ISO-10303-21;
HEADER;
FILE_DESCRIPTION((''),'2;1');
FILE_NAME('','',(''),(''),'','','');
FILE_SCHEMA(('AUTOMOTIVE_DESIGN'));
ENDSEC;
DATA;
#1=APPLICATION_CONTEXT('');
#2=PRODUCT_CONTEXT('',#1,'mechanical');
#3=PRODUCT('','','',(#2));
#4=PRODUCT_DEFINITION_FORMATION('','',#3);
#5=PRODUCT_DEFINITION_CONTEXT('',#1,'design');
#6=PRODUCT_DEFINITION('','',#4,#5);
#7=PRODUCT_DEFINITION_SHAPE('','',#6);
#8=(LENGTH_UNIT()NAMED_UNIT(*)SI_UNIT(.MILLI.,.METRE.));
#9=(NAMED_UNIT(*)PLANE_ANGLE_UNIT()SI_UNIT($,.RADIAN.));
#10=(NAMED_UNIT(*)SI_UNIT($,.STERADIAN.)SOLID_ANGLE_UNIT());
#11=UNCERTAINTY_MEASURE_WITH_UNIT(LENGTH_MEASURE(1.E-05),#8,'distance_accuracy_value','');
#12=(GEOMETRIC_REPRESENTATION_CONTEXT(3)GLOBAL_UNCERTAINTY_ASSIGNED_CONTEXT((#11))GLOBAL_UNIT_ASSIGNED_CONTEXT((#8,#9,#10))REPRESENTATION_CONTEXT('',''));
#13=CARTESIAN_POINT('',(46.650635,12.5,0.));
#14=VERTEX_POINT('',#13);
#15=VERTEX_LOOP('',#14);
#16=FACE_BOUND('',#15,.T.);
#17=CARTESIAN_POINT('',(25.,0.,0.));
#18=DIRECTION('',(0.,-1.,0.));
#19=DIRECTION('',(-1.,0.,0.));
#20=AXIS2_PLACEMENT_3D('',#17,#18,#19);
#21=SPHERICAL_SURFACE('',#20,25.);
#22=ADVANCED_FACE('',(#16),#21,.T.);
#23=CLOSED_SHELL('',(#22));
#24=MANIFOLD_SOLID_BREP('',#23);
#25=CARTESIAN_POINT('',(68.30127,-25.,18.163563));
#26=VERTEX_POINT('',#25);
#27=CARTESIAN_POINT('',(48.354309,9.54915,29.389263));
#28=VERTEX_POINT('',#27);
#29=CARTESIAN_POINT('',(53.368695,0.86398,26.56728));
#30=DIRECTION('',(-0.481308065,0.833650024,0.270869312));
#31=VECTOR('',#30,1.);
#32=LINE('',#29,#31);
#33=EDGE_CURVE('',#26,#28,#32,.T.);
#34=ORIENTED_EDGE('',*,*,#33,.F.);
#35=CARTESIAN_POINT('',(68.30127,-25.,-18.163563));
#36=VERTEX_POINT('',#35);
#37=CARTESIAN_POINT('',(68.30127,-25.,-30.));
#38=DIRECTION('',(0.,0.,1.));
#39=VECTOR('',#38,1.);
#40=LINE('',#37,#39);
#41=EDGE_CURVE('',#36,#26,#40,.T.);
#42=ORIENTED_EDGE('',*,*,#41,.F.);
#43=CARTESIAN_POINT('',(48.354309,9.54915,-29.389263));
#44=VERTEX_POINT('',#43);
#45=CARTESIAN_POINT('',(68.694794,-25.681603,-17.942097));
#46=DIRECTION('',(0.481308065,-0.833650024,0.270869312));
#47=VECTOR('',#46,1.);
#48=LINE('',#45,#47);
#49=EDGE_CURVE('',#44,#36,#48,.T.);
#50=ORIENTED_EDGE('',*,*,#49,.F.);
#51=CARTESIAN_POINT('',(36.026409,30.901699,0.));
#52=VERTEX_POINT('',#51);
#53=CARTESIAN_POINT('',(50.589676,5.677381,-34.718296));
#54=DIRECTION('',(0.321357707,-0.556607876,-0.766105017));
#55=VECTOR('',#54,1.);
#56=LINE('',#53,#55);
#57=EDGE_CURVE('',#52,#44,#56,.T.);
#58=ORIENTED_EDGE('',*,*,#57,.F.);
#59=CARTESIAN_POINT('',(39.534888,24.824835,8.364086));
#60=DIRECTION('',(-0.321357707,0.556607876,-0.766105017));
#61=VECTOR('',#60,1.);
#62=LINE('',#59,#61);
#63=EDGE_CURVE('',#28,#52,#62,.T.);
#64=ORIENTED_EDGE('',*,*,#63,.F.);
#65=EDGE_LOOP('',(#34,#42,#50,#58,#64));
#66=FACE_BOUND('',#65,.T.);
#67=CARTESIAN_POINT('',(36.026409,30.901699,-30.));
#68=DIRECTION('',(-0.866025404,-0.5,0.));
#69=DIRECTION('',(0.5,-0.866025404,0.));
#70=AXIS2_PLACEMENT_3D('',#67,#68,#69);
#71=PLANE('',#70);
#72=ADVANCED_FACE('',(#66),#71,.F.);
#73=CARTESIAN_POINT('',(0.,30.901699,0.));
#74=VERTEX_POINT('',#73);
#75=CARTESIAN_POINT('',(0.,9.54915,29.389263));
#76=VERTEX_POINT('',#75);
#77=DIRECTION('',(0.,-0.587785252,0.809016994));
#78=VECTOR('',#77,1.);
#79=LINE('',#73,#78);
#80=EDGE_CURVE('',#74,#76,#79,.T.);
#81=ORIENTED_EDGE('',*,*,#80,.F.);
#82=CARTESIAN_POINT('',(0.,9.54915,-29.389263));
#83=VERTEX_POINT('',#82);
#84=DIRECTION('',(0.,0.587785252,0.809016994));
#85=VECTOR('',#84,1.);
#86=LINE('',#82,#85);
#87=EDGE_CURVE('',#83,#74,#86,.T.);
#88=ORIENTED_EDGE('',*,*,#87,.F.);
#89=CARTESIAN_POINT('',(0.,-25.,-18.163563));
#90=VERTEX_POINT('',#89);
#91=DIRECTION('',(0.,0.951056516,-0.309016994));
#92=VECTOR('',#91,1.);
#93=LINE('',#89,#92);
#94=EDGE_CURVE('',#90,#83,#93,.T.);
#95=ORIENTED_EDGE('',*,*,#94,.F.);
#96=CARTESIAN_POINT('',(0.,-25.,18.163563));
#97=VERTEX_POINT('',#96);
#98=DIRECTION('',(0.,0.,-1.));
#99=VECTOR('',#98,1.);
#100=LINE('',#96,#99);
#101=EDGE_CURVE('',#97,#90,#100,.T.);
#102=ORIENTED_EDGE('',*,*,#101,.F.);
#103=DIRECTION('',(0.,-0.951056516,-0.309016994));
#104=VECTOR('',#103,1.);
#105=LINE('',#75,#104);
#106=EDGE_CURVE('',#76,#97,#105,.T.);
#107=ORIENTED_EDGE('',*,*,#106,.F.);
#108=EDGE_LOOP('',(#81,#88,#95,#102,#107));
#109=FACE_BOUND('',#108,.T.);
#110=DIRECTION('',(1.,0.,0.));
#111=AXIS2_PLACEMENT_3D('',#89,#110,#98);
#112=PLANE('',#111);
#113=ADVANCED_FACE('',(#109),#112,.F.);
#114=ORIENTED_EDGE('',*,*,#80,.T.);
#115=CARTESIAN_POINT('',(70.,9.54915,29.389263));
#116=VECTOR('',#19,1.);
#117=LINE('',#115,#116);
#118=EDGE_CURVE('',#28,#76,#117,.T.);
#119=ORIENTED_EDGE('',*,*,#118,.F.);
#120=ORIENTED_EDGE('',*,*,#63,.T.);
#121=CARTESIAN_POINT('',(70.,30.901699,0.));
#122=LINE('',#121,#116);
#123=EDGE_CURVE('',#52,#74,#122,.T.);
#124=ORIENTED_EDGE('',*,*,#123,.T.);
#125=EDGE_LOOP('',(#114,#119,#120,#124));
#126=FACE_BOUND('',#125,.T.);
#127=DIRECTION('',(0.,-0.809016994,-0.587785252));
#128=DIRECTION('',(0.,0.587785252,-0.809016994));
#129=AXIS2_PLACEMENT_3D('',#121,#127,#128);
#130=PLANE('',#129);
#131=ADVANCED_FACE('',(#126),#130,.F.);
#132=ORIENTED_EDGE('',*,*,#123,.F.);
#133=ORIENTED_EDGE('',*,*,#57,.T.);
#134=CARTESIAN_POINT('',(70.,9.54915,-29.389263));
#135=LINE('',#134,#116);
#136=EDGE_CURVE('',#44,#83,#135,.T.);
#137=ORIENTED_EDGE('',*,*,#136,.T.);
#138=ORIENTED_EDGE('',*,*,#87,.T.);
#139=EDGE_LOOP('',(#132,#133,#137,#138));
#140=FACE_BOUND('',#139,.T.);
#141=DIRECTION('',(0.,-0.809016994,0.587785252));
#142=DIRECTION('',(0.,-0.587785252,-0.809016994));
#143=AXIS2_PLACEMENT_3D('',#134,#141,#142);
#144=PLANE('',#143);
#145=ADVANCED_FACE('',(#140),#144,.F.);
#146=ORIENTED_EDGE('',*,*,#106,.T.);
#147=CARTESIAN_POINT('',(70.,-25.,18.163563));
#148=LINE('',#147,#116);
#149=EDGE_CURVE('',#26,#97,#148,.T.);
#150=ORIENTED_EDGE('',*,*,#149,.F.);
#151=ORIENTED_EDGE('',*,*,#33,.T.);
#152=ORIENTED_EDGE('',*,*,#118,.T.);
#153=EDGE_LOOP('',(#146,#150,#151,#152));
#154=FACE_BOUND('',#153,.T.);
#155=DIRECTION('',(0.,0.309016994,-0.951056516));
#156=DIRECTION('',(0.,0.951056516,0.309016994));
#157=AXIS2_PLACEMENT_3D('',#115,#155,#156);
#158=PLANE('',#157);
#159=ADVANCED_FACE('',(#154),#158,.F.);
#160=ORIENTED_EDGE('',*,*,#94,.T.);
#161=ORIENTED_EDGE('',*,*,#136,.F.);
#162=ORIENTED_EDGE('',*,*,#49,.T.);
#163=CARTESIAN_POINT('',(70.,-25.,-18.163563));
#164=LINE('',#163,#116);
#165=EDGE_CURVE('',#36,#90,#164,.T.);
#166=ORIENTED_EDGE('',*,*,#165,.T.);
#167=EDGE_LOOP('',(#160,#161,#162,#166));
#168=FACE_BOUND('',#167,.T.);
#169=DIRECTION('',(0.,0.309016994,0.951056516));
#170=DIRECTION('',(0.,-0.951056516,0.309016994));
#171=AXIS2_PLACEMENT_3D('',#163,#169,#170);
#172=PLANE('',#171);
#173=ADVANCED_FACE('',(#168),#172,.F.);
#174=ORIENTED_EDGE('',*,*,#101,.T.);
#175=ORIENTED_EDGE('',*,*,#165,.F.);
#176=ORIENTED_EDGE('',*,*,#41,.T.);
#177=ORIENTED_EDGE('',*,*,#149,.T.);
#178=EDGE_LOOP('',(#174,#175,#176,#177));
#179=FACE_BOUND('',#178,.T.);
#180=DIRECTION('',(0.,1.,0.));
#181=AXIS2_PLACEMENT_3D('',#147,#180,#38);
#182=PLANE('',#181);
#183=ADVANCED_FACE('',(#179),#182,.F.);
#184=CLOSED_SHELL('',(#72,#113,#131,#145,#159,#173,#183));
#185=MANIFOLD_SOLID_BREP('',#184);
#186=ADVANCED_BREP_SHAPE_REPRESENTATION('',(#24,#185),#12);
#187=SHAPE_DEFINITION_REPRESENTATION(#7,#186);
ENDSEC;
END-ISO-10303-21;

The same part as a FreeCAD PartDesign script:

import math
import FreeCAD as App
import Part
import Sketcher
Q = App.Units.Quantity

doc = App.newDocument("Part")
body = doc.addObject("PartDesign::Body", "Body")

sketch1 = body.newObject("Sketcher::SketchObject", "Sketch")
sketch1.AttachmentSupport = (doc.getObject("YZ_Plane"), [""])
sketch1.MapMode = "FlatFace"
sketch1.addGeometry([
    Part.LineSegment(App.Vector(-25, -18, 0), App.Vector(10, -29, 0)),
    Part.LineSegment(App.Vector(10, -29, 0), App.Vector(31, 0, 0)),
    Part.LineSegment(App.Vector(31, 0, 0), App.Vector(10, 29, 0)),
    Part.LineSegment(App.Vector(10, 29, 0), App.Vector(-25, 18, 0)),
    Part.LineSegment(App.Vector(-25, 18, 0), App.Vector(-25, -18, 0)),
], False)
sketch1.addConstraint([
    Sketcher.Constraint("Coincident", 0, 2, 1, 1),
    Sketcher.Constraint("Coincident", 1, 2, 2, 1),
    Sketcher.Constraint("Coincident", 2, 2, 3, 1),
    Sketcher.Constraint("Coincident", 3, 2, 4, 1),
    Sketcher.Constraint("Coincident", 4, 2, 0, 1),
    Sketcher.Constraint("Vertical", 4),
    Sketcher.Constraint("Symmetric", 0, 2, 2, 2, -1),
    Sketcher.Constraint("PointOnObject", 1, 2, -1),
    Sketcher.Constraint("Equal", 0, 1),
    Sketcher.Constraint("Equal", 2, 3),
    Sketcher.Constraint("Angle", 0, Q("-18 deg")),
    Sketcher.Constraint("Angle", 1, Q("54 deg")),
    Sketcher.Constraint("DistanceX", 3, 2, -1, 1, 25.0),
    Sketcher.Constraint("DistanceX", -1, 1, 1, 2, 30.901699),
])
pad1 = body.newObject("PartDesign::Pad", "Pad")
pad1.Profile = sketch1
pad1.Length = 70

sketch2 = body.newObject("Sketcher::SketchObject", "Sketch001")
sketch2.AttachmentSupport = (doc.getObject("XY_Plane"), [""])
sketch2.MapMode = "FlatFace"
sketch2.addGeometry([
    Part.LineSegment(App.Vector(70, 30.9, 0), App.Vector(36, 30.9, 0)),
    Part.LineSegment(App.Vector(36, 30.9, 0), App.Vector(68.3, -25, 0)),
    Part.LineSegment(App.Vector(68.3, -25, 0), App.Vector(70, -25, 0)),
    Part.LineSegment(App.Vector(70, -25, 0), App.Vector(70, 30.9, 0)),
], False)
sketch2.addConstraint([
    Sketcher.Constraint("Coincident", 0, 2, 1, 1),
    Sketcher.Constraint("Coincident", 1, 2, 2, 1),
    Sketcher.Constraint("Coincident", 2, 2, 3, 1),
    Sketcher.Constraint("Coincident", 3, 2, 0, 1),
    Sketcher.Constraint("Horizontal", 0),
    Sketcher.Constraint("Horizontal", 2),
    Sketcher.Constraint("Vertical", 3),
    Sketcher.Constraint("Angle", 1, Q("-60 deg")),
    Sketcher.Constraint("DistanceY", 1, 2, -1, 1, 25.0),
    Sketcher.Constraint("DistanceX", -1, 1, 2, 2, 70.0),
    Sketcher.Constraint("DistanceY", 3, 1, 3, 2, 55.901699),
    Sketcher.Constraint("DistanceX", 0, 2, 0, 1, 33.973591),
])
pocket1 = body.newObject("PartDesign::Pocket", "Pocket")
pocket1.Profile = sketch2
pocket1.Length = 60
pocket1.Midplane = True
body2 = doc.addObject("PartDesign::Body", "Body001")

sketch3 = body2.newObject("Sketcher::SketchObject", "Sketch002")
sketch3.AttachmentSupport = (doc.getObject("XY_Plane001"), [""])
sketch3.MapMode = "FlatFace"
sketch3.addGeometry([
    Part.LineSegment(App.Vector(25, 25, 0), App.Vector(25, -25, 0)),
    Part.ArcOfCircle(Part.Circle(App.Vector(25, 0, 0), App.Vector(0, 0, 1), 25), math.radians(-90), math.radians(90)),
], False)
sketch3.addGeometry(Part.LineSegment(App.Vector(25, -25, 0), App.Vector(25, 25, 0)), True)
sketch3.addConstraint([
    Sketcher.Constraint("Coincident", 0, 1, 1, 2),
    Sketcher.Constraint("Coincident", 1, 1, 0, 2),
    Sketcher.Constraint("Vertical", 0),
    Sketcher.Constraint("Vertical", 2),
    Sketcher.Constraint("Coincident", 2, 1, 1, 1),
    Sketcher.Constraint("PointOnObject", 1, 3, -1),
    Sketcher.Constraint("Vertical", 1, 3, 0, 1),
    Sketcher.Constraint("Equal", 0, 2),
    Sketcher.Constraint("Radius", 1, 25.0),
    Sketcher.Constraint("DistanceX", -1, 1, 1, 3, 25.0),
])
revolution = body2.newObject("PartDesign::Revolution", "Revolution")
revolution.Profile = sketch3
revolution.ReferenceAxis = (sketch3, ["Axis0"])
revolution.Angle = 360

doc.recompute()
